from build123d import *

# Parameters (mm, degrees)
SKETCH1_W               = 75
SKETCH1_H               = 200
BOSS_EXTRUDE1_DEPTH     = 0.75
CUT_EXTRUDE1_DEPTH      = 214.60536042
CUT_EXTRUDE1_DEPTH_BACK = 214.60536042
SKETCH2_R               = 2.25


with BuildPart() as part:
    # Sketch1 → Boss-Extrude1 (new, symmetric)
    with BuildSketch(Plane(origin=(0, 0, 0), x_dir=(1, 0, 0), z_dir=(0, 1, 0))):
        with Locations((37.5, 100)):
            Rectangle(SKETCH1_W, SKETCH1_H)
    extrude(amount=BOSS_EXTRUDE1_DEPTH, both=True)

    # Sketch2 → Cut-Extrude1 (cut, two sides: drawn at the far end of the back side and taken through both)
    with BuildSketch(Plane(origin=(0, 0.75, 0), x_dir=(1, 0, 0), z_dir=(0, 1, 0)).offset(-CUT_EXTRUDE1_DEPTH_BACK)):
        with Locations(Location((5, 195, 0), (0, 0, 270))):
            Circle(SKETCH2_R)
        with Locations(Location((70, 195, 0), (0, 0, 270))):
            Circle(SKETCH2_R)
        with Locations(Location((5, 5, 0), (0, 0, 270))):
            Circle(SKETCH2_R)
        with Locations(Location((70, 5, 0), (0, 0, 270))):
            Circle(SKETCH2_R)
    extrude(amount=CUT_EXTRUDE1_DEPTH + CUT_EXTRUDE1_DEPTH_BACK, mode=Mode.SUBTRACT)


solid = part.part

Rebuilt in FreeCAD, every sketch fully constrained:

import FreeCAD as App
import Part
import Sketcher
Q = App.Units.Quantity

doc = App.newDocument("Part")
body = doc.addObject("PartDesign::Body", "Body")

# Sketch on XZ plane
sketch1 = body.newObject("Sketcher::SketchObject", "Sketch")
sketch1.AttachmentSupport = (doc.getObject("XZ_Plane"), [""])
sketch1.MapMode = "FlatFace"
sketch1.addGeometry([
    Part.LineSegment(App.Vector(0, -200, 0), App.Vector(0, 0, 0)),
    Part.LineSegment(App.Vector(0, 0, 0), App.Vector(75, 0, 0)),
    Part.LineSegment(App.Vector(75, 0, 0), App.Vector(75, -200, 0)),
    Part.LineSegment(App.Vector(75, -200, 0), App.Vector(0, -200, 0)),
], False)
sketch1.addConstraint([
    Sketcher.Constraint("Coincident", 0, 2, 1, 1),
    Sketcher.Constraint("Coincident", 1, 2, 2, 1),
    Sketcher.Constraint("Coincident", 2, 2, 3, 1),
    Sketcher.Constraint("Coincident", 3, 2, 0, 1),
    Sketcher.Constraint("Vertical", 0),
    Sketcher.Constraint("Horizontal", 1),
    Sketcher.Constraint("Vertical", 2),
    Sketcher.Constraint("Horizontal", 3),
    Sketcher.Constraint("Coincident", 0, 2, -1, 1),
    Sketcher.Constraint("DistanceX", 1, 1, 1, 2, Q("75 mm")),
    Sketcher.Constraint("DistanceY", 0, 1, 0, 2, Q("200 mm")),
])
pad1 = body.newObject("PartDesign::Pad", "Pad")
pad1.Profile = sketch1
pad1.Length = 1.5
pad1.Midplane = True

# Sketch on XZ plane
sketch2 = body.newObject("Sketcher::SketchObject", "Sketch001")
sketch2.AttachmentSupport = (doc.getObject("XZ_Plane"), [""])
sketch2.MapMode = "FlatFace"
sketch2.AttachmentOffset = App.Placement(App.Vector(0, 0, -0.75), App.Rotation())
sketch2.addGeometry([
    Part.Circle(App.Vector(5, -195, 0), App.Vector(0, 0, 1), 2.2),
    Part.Circle(App.Vector(70, -195, 0), App.Vector(0, 0, 1), 2.2),
    Part.Circle(App.Vector(5, -5, 0), App.Vector(0, 0, 1), 2.2),
    Part.Circle(App.Vector(70, -5, 0), App.Vector(0, 0, 1), 2.2),
], False)
sketch2.addConstraint([
    Sketcher.Constraint("Equal", 0, 1),
    Sketcher.Constraint("Equal", 1, 2),
    Sketcher.Constraint("Equal", 2, 3),
    Sketcher.Constraint("Horizontal", 0, 3, 1, 3),
    Sketcher.Constraint("Horizontal", 2, 3, 3, 3),
    Sketcher.Constraint("Vertical", 0, 3, 2, 3),
    Sketcher.Constraint("Vertical", 1, 3, 3, 3),
    Sketcher.Constraint("Diameter", 0, Q("4.5 mm")),
    Sketcher.Constraint("DistanceX", -1, 1, 0, 3, Q("5 mm")),
    Sketcher.Constraint("DistanceY", 0, 3, -1, 1, Q("195 mm")),
    Sketcher.Constraint("DistanceX", -1, 1, 1, 3, Q("70 mm")),
    Sketcher.Constraint("DistanceY", 2, 3, -1, 1, Q("5 mm")),
])
pocket1 = body.newObject("PartDesign::Pocket", "Pocket")
pocket1.Profile = sketch2
pocket1.Type = "ThroughAll"
pocket1.Midplane = True

doc.recompute()
